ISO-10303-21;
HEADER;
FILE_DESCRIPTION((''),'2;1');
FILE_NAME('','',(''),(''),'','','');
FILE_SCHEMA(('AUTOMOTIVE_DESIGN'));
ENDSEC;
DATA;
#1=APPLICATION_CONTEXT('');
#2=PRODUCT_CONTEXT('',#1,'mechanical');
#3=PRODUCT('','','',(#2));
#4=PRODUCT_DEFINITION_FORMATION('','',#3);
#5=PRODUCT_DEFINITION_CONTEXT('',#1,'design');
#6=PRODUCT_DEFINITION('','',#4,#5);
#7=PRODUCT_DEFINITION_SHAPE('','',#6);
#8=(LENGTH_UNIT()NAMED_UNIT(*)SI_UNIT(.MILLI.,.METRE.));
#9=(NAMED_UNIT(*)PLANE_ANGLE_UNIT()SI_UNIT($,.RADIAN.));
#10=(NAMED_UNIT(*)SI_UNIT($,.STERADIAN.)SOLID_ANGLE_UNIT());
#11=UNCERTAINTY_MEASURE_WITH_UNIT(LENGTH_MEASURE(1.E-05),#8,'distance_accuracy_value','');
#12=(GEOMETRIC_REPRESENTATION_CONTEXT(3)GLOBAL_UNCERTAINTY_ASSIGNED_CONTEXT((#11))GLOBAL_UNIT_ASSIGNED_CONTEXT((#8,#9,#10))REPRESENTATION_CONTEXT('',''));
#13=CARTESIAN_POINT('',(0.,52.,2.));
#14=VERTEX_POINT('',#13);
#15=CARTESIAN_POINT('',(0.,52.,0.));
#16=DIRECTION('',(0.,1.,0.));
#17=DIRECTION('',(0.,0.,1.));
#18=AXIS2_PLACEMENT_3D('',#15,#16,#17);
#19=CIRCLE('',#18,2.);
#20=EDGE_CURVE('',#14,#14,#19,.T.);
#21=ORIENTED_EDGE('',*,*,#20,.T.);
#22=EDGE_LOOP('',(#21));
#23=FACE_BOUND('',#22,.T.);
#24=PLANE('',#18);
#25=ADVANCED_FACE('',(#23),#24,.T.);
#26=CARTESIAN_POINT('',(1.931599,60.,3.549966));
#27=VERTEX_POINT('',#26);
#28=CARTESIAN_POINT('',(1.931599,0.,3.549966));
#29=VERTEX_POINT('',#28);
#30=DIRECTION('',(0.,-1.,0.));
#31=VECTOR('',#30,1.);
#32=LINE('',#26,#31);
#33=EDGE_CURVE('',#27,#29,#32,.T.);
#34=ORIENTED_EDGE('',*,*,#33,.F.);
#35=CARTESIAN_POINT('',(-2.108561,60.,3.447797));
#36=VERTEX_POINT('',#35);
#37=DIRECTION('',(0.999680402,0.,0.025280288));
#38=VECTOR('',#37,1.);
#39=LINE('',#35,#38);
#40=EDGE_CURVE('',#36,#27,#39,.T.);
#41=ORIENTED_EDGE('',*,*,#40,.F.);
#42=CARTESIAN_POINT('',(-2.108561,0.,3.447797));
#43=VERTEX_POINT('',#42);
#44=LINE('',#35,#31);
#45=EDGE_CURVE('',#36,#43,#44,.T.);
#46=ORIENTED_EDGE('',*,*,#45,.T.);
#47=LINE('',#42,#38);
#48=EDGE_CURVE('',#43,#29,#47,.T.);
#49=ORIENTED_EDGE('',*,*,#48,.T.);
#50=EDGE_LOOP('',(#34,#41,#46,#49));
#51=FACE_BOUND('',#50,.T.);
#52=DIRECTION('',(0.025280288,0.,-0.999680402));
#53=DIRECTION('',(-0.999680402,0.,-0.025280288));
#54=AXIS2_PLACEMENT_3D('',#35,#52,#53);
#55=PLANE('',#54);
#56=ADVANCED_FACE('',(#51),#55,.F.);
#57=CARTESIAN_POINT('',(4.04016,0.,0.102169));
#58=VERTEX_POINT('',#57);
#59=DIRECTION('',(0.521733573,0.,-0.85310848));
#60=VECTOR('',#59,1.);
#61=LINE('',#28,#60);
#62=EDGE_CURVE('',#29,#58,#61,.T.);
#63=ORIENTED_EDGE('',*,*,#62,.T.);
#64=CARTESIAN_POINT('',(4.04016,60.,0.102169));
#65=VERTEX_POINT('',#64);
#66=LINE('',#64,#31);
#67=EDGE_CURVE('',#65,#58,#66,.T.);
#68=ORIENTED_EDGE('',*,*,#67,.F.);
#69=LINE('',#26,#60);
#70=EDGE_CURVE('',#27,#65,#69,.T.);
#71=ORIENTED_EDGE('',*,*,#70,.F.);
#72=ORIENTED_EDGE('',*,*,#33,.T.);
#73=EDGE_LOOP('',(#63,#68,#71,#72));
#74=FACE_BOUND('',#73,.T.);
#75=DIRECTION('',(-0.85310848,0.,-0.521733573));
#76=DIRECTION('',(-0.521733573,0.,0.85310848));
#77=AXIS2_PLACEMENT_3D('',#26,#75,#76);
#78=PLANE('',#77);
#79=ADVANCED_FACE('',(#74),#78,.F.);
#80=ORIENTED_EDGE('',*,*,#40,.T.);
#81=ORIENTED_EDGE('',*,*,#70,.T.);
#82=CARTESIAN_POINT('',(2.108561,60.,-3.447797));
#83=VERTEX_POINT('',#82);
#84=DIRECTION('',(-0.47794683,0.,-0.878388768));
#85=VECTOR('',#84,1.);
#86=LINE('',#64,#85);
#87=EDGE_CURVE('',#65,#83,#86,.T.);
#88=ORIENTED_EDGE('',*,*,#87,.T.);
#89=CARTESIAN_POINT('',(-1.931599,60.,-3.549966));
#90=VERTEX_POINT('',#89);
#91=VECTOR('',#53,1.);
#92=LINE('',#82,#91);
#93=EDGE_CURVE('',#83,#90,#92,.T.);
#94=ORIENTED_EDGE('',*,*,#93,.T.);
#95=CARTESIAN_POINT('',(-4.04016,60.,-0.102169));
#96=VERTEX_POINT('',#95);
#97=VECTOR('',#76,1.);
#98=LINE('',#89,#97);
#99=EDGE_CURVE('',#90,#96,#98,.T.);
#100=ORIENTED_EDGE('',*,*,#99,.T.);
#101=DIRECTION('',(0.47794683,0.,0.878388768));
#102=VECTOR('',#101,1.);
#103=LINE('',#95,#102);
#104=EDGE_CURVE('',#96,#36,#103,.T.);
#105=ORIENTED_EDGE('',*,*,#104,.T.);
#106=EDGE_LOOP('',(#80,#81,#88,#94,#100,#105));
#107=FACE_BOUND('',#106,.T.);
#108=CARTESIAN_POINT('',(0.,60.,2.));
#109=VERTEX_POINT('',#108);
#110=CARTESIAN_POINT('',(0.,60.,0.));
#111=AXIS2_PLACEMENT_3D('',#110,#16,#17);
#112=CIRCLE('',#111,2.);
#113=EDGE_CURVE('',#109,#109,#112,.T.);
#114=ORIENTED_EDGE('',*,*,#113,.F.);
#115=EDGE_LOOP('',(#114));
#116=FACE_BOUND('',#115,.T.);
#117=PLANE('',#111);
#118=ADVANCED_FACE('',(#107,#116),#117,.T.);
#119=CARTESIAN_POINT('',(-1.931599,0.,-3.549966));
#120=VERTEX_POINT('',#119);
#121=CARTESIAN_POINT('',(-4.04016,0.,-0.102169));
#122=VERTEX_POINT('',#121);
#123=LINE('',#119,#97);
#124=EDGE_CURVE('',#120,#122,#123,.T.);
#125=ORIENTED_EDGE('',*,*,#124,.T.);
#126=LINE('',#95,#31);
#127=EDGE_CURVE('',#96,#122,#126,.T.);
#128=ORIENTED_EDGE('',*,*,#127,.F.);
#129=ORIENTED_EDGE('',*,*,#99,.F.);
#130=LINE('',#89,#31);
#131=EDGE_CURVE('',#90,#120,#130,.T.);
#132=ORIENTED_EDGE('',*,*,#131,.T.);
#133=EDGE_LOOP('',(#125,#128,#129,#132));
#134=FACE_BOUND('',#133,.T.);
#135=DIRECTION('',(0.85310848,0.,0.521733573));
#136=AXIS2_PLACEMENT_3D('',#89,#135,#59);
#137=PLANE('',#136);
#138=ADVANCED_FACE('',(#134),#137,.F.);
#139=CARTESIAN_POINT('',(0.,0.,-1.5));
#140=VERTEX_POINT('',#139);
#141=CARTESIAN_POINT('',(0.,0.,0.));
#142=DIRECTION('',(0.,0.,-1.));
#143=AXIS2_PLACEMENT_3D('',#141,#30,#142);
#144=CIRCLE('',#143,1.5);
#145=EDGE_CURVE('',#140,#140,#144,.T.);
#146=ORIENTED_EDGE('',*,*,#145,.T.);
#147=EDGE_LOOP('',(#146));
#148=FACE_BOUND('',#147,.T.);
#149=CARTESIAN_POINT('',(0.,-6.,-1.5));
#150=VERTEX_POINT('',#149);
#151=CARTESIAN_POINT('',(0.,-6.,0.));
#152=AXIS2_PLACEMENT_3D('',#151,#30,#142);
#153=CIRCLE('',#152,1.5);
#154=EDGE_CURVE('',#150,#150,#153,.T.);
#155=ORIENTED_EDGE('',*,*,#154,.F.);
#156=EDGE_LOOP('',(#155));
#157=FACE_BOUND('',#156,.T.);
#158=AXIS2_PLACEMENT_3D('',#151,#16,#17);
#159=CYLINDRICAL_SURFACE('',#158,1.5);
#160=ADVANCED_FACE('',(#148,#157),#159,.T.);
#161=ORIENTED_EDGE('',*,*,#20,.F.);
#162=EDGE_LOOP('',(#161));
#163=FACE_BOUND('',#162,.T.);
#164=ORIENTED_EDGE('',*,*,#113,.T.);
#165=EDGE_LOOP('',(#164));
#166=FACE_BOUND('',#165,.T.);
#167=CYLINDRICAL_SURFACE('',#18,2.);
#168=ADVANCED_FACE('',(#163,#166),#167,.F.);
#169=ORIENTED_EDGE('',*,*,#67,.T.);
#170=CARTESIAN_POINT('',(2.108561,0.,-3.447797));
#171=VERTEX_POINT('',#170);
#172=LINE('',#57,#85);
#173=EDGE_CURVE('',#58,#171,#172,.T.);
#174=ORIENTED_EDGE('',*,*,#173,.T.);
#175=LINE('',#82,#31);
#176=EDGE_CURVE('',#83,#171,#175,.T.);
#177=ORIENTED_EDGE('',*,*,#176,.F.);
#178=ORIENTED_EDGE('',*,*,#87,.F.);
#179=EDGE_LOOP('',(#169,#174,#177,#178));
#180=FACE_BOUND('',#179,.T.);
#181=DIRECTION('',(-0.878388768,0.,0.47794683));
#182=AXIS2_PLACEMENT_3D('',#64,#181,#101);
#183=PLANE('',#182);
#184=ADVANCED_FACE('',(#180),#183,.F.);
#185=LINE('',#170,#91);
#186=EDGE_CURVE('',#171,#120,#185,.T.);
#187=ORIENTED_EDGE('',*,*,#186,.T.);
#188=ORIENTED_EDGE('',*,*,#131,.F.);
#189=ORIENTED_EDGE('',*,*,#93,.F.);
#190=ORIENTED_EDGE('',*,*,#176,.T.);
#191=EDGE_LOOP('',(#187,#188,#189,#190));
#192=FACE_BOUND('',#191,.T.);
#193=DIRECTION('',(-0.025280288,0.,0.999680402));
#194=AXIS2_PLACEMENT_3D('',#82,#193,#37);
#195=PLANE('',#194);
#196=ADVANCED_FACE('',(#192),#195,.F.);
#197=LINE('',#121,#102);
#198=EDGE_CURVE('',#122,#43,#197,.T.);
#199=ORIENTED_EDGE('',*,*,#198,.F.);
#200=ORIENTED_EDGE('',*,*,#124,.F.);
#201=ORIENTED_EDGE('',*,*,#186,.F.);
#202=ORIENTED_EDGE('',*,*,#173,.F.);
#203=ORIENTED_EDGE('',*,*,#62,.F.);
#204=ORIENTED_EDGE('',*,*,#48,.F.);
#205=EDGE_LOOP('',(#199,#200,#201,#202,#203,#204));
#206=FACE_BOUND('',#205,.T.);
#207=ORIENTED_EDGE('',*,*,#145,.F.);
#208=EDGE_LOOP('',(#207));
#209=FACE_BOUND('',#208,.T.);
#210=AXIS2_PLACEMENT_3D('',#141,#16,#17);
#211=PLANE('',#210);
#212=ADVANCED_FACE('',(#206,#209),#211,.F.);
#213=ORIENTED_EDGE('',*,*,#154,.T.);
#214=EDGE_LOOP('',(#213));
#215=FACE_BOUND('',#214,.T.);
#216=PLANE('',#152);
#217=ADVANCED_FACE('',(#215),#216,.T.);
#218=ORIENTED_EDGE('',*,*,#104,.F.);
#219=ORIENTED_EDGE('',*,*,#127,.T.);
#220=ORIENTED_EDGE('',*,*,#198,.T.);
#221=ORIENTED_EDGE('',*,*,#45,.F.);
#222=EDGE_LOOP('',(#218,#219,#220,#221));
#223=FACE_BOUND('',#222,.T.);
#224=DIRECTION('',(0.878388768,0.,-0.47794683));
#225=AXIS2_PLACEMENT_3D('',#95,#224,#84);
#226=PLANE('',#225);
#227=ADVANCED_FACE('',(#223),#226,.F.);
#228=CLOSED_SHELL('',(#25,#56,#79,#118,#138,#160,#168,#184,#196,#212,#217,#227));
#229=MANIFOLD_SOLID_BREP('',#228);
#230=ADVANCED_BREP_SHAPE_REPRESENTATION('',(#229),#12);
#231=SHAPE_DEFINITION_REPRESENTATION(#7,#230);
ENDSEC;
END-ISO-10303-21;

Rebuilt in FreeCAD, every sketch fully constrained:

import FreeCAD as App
import Part
import Sketcher

doc = App.newDocument("Part")
body = doc.addObject("PartDesign::Body", "Body")

sketch1 = body.newObject("Sketcher::SketchObject", "Sketch")
sketch1.AttachmentSupport = (doc.getObject("XZ_Plane"), [""])
sketch1.MapMode = "FlatFace"
sketch1.addGeometry([
    Part.LineSegment(App.Vector(1.9, 3.5, 0), App.Vector(4, 0.1, 0)),
    Part.LineSegment(App.Vector(4, 0.1, 0), App.Vector(2.1, -3.4, 0)),
    Part.LineSegment(App.Vector(2.1, -3.4, 0), App.Vector(-1.9, -3.5, 0)),
    Part.LineSegment(App.Vector(-1.9, -3.5, 0), App.Vector(-4, -0.1, 0)),
    Part.LineSegment(App.Vector(-4, -0.1, 0), App.Vector(-2.1, 3.4, 0)),
    Part.LineSegment(App.Vector(-2.1, 3.4, 0), App.Vector(1.9, 3.5, 0)),
], False)
sketch1.addConstraint([
    Sketcher.Constraint("Coincident", 0, 2, 1, 1),
    Sketcher.Constraint("Coincident", 1, 2, 2, 1),
    Sketcher.Constraint("Coincident", 2, 2, 3, 1),
    Sketcher.Constraint("Coincident", 3, 2, 4, 1),
    Sketcher.Constraint("Coincident", 4, 2, 5, 1),
    Sketcher.Constraint("Coincident", 5, 2, 0, 1),
    Sketcher.Constraint("Symmetric", 0, 2, 3, 2, -1, 1),
    Sketcher.Constraint("Symmetric", 1, 2, 4, 2, -1, 1),
    Sketcher.Constraint("Symmetric", 2, 2, 5, 2, -1, 1),
    Sketcher.Constraint("Equal", 0, 1),
    Sketcher.Constraint("Equal", 1, 2),
    Sketcher.Constraint("DistanceX", 2, 2, -1, 1, 1.931599),
    Sketcher.Constraint("DistanceX", 1, 2, 0, 2, 1.931599),
    Sketcher.Constraint("Distance", 0, 4.041452),
    Sketcher.Constraint("DistanceX", -1, 1, 0, 2, 4.04016),
])
pad1 = body.newObject("PartDesign::Pad", "Pad")
pad1.Profile = sketch1
pad1.Length = 60
pad1.Reversed = True

sketch2 = body.newObject("Sketcher::SketchObject", "Sketch001")
sketch2.AttachmentSupport = (doc.getObject("XZ_Plane"), [""])
sketch2.MapMode = "FlatFace"
sketch2.AttachmentOffset = App.Placement(App.Vector(0, 0, -60), App.Rotation())
sketch2.addGeometry(Part.Circle(App.Vector(0, 0, 0), App.Vector(0, 0, 1), 2), False)
sketch2.addConstraint([
    Sketcher.Constraint("Coincident", 0, 3, -1, 1),
    Sketcher.Constraint("Diameter", 0, 4.0),
])
pocket1 = body.newObject("PartDesign::Pocket", "Pocket")
pocket1.Profile = sketch2
pocket1.Length = 8
pocket1.Reversed = True

sketch3 = body.newObject("Sketcher::SketchObject", "Sketch002")
sketch3.AttachmentSupport = (doc.getObject("XZ_Plane"), [""])
sketch3.MapMode = "FlatFace"
sketch3.addGeometry(Part.Circle(App.Vector(0, 0, 0), App.Vector(0, 0, 1), 1.5), False)
sketch3.addConstraint([
    Sketcher.Constraint("Coincident", 0, 3, -1, 1),
    Sketcher.Constraint("Diameter", 0, 3.0),
])
pad2 = body.newObject("PartDesign::Pad", "Pad001")
pad2.Profile = sketch3
pad2.Length = 6

doc.recompute()
